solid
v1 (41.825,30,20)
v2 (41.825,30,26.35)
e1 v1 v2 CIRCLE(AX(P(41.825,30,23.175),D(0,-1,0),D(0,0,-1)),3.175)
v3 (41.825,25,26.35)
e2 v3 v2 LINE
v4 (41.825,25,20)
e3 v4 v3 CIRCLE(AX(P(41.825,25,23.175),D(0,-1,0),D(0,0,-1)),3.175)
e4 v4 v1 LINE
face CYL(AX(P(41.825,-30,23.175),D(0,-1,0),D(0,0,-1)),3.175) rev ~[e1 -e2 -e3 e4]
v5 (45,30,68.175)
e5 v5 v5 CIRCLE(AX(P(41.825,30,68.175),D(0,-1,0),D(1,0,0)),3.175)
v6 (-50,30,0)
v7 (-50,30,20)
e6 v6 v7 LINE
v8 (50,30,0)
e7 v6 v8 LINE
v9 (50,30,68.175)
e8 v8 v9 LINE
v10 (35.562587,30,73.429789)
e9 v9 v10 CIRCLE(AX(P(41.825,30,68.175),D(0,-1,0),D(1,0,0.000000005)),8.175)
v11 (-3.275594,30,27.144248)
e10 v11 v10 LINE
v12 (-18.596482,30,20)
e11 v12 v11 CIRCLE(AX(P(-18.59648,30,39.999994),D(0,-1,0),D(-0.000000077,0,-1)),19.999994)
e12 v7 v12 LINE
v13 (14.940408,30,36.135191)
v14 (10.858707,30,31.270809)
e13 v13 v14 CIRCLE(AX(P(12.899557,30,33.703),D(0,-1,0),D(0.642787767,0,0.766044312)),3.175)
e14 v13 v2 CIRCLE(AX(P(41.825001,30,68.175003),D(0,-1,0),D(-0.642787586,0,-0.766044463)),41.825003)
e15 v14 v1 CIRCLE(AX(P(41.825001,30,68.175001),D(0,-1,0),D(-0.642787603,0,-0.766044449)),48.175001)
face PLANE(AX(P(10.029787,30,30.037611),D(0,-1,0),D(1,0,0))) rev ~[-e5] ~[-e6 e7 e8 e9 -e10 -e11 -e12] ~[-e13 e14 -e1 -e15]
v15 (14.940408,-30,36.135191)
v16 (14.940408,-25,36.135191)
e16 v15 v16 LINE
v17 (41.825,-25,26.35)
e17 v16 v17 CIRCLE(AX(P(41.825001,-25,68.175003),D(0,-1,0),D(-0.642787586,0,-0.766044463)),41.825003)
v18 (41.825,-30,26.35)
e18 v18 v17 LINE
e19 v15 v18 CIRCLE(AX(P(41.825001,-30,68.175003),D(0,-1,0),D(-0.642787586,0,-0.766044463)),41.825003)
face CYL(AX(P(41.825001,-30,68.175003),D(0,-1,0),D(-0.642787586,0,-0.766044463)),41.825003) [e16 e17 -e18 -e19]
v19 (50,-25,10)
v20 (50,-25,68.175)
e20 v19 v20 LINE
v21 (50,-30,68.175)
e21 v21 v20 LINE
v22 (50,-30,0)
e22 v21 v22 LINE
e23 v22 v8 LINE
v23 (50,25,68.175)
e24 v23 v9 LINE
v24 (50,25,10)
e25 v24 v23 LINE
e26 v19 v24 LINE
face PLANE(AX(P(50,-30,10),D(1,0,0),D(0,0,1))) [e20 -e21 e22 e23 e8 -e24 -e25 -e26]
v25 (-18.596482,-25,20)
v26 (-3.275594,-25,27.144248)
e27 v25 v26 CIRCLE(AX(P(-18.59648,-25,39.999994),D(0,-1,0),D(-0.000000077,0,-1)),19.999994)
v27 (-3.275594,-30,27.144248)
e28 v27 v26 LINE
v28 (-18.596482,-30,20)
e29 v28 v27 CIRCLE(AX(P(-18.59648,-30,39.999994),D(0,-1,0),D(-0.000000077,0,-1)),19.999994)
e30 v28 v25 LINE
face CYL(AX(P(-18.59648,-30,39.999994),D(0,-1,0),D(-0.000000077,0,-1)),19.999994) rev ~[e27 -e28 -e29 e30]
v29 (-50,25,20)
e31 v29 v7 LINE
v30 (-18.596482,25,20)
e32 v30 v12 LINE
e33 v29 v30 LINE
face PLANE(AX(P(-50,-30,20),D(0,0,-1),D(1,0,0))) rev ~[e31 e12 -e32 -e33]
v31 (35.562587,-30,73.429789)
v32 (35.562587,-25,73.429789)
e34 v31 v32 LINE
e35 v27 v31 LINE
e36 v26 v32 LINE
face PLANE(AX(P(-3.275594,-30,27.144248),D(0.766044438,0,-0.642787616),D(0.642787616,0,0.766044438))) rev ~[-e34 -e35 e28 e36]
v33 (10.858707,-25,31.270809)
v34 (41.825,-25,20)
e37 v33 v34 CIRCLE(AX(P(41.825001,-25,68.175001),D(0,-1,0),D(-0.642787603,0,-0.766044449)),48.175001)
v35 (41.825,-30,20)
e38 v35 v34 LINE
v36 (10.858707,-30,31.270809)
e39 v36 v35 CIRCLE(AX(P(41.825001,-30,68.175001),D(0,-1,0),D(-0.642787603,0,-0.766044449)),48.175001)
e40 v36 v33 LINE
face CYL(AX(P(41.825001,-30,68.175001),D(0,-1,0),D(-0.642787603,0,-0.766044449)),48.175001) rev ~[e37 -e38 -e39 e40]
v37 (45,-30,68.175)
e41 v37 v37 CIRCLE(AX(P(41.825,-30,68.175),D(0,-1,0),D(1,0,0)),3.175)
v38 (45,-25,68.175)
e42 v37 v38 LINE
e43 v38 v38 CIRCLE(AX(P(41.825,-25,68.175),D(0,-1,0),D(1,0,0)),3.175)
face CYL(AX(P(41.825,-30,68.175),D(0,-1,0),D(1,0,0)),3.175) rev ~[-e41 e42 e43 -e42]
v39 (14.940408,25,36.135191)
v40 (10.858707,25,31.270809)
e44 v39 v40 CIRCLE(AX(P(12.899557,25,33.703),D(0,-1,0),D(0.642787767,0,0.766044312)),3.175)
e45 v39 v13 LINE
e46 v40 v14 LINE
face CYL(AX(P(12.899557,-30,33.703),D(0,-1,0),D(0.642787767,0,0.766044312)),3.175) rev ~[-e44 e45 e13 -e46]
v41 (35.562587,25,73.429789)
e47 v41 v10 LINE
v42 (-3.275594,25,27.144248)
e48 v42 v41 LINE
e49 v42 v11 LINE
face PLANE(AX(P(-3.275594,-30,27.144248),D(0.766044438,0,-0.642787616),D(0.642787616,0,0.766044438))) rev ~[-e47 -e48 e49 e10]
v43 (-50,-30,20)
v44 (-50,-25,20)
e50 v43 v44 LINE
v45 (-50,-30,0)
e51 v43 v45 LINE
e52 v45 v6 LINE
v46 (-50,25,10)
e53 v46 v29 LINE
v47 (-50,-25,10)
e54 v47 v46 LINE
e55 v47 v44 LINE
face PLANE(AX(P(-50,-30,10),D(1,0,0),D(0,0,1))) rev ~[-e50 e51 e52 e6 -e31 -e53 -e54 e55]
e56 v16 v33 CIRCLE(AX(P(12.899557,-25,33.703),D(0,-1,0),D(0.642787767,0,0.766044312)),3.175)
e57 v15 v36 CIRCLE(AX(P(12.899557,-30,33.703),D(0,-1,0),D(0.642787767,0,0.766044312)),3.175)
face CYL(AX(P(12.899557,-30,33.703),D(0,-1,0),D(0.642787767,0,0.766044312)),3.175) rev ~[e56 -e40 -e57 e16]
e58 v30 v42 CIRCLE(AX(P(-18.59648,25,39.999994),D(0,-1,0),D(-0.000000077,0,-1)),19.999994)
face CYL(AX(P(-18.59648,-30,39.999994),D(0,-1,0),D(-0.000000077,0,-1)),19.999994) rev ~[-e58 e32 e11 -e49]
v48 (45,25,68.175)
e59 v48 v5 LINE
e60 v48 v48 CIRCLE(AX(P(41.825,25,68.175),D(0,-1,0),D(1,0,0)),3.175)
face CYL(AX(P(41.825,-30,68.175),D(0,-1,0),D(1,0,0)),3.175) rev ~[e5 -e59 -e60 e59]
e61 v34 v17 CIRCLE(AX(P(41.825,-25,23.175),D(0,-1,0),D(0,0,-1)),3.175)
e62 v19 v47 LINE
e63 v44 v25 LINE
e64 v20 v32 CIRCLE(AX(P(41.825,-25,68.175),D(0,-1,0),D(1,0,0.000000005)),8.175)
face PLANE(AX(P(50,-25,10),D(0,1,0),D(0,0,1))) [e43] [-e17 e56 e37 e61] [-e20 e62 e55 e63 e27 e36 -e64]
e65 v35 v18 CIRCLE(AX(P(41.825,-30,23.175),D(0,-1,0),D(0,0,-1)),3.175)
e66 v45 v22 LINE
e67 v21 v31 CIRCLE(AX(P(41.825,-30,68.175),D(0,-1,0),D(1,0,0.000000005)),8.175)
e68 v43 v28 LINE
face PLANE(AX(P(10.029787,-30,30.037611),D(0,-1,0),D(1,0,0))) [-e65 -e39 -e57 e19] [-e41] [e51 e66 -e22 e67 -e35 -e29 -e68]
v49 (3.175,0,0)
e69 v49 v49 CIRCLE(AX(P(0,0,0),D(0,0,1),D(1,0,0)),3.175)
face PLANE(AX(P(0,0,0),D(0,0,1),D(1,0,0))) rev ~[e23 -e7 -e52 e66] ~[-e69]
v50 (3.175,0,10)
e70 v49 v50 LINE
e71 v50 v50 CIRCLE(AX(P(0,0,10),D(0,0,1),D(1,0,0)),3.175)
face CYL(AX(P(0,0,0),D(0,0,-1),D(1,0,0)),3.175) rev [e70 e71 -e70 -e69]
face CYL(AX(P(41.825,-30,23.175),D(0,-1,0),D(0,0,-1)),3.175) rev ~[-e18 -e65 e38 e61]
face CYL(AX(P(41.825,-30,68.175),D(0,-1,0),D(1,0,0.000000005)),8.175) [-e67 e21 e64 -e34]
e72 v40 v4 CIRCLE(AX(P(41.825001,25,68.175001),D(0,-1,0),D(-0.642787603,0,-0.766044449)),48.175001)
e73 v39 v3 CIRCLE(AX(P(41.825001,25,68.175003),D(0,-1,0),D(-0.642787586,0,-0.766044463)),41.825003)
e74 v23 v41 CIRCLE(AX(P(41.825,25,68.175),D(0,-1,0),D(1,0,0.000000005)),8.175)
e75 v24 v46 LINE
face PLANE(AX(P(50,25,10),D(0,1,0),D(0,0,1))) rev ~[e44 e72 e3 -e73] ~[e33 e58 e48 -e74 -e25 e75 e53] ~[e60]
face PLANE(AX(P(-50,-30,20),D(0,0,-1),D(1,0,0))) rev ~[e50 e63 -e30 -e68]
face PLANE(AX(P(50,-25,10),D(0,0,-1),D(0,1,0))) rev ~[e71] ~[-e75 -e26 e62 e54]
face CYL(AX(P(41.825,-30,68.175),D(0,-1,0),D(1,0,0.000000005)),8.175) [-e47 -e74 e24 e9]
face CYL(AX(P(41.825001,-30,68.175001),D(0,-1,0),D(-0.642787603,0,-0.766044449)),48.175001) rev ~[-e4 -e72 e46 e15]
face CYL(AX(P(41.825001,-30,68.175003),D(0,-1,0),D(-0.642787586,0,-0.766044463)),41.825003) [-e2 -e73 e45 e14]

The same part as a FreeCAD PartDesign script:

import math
import FreeCAD as App
import Part
import Sketcher

V = App.Vector
Q = App.Units.Quantity


def add_polygon(sketch, points):
    """Adds a closed chain of lines whose ends are joined by coincident constraints."""
    first, n = sketch.GeometryCount, len(points)
    for a, b in zip(points, points[1:] + points[:1]):
        sketch.addGeometry(Part.LineSegment(App.Vector(*a, 0), App.Vector(*b, 0)), False)
    for i in range(n):
        sketch.addConstraint(Sketcher.Constraint("Coincident", first + i, 2, first + (i + 1) % n, 1))

doc = App.newDocument("Part")
body = doc.addObject("PartDesign::Body", "Body")

# Sketch on XY plane
sketch1 = body.newObject("Sketcher::SketchObject", "Sketch")
sketch1.AttachmentSupport = (doc.getObject("XY_Plane"), [""])
sketch1.MapMode = "FlatFace"
add_polygon(sketch1, [(-50, 30), (-50, -30), (50, -30), (50, 30)])  # lines 0-3
sketch1.addGeometry(Part.Circle(V(0, 0, 0), V(0, 0, 1), 3.2), False)  # 4
sketch1.addConstraint(Sketcher.Constraint("Vertical", 0))
sketch1.addConstraint(Sketcher.Constraint("Horizontal", 1))
sketch1.addConstraint(Sketcher.Constraint("Vertical", 2))
sketch1.addConstraint(Sketcher.Constraint("Horizontal", 3))
sketch1.addConstraint(Sketcher.Constraint("Coincident", 4, 3, -1, 1))
sketch1.addConstraint(Sketcher.Constraint("Symmetric", 0, 2, 2, 2, -1, 1))
sketch1.addConstraint(Sketcher.Constraint("Diameter", 4, Q("6.35 mm")))
sketch1.addConstraint(Sketcher.Constraint("DistanceX", 1, 1, 1, 2, Q("100 mm")))
sketch1.addConstraint(Sketcher.Constraint("DistanceY", 0, 2, 0, 1, Q("60 mm")))
pad1 = body.newObject("PartDesign::Pad", "Pad")
pad1.Profile = sketch1
pad1.Length = 10

# Sketch on XZ plane
sketch2 = body.newObject("Sketcher::SketchObject", "Sketch001")
sketch2.AttachmentSupport = (doc.getObject("XZ_Plane"), [""])
sketch2.MapMode = "FlatFace"
sketch2.AttachmentOffset = App.Placement(V(0, 0, 30), App.Rotation())
sketch2.addGeometry(Part.ArcOfCircle(Part.Circle(V(41.8, 68.2, 0), V(0, 0, 1), 8.2), math.radians(0), math.radians(140)), False)
sketch2.addGeometry(Part.LineSegment(V(35.6, 73.4, 0), V(-3.3, 27.1, 0)), False)
sketch2.addGeometry(Part.ArcOfCircle(Part.Circle(V(-18.6, 40, 0), V(0, 0, 1), 20), math.radians(-90), math.radians(-40)), False)
sketch2.addGeometry(Part.LineSegment(V(-18.6, 20, 0), V(-50, 20, 0)), False)
sketch2.addGeometry(Part.LineSegment(V(-50, 20, 0), V(-50, 10, 0)), False)
sketch2.addGeometry(Part.LineSegment(V(-50, 10, 0), V(50, 10, 0)), False)
sketch2.addGeometry(Part.LineSegment(V(50, 10, 0), V(50, 68.2, 0)), False)
sketch2.addGeometry(Part.ArcOfCircle(Part.Circle(V(41.8, 68.2, 0), V(0, 0, 1), 48.2), math.radians(-130), math.radians(-90)), False)
sketch2.addGeometry(Part.ArcOfCircle(Part.Circle(V(12.9, 33.7, 0), V(0, 0, 1), 3.2), math.radians(50), math.radians(230)), False)
sketch2.addGeometry(Part.ArcOfCircle(Part.Circle(V(41.8, 68.2, 0), V(0, 0, 1), 41.8), math.radians(-130), math.radians(-90)), False)
sketch2.addGeometry(Part.ArcOfCircle(Part.Circle(V(41.8, 23.2, 0), V(0, 0, 1), 3.2), math.radians(-90), math.radians(90)), False)
sketch2.addGeometry(Part.Circle(V(41.8, 68.2, 0), V(0, 0, 1), 3.2), False)
sketch2.addConstraint(Sketcher.Constraint("Tangent", 0, 2, 1, 1))
sketch2.addConstraint(Sketcher.Constraint("Tangent", 1, 2, 2, 2))
sketch2.addConstraint(Sketcher.Constraint("Tangent", 2, 1, 3, 1))
sketch2.addConstraint(Sketcher.Constraint("Coincident", 3, 2, 4, 1))
sketch2.addConstraint(Sketcher.Constraint("Coincident", 4, 2, 5, 1))
sketch2.addConstraint(Sketcher.Constraint("Coincident", 5, 2, 6, 1))
sketch2.addConstraint(Sketcher.Constraint("Tangent", 6, 2, 0, 1))
sketch2.addConstraint(Sketcher.Constraint("Tangent", 7, 1, 8, 2))
sketch2.addConstraint(Sketcher.Constraint("Tangent", 8, 1, 9, 1))
sketch2.addConstraint(Sketcher.Constraint("Tangent", 9, 2, 10, 2))
sketch2.addConstraint(Sketcher.Constraint("Tangent", 10, 1, 7, 2))
sketch2.addConstraint(Sketcher.Constraint("Horizontal", 3))
sketch2.addConstraint(Sketcher.Constraint("Vertical", 4))
sketch2.addConstraint(Sketcher.Constraint("Horizontal", 5))
sketch2.addConstraint(Sketcher.Constraint("Vertical", 6))
sketch2.addConstraint(Sketcher.Constraint("Coincident", 7, 3, 0, 3))
sketch2.addConstraint(Sketcher.Constraint("Coincident", 9, 3, 0, 3))
sketch2.addConstraint(Sketcher.Constraint("Coincident", 11, 3, 0, 3))
sketch2.addConstraint(Sketcher.Constraint("Equal", 10, 11))
sketch2.addConstraint(Sketcher.Constraint("Horizontal", 3, 2, 10, 1))
sketch2.addConstraint(Sketcher.Constraint("Vertical", 9, 3, 10, 3))
sketch2.addConstraint(Sketcher.Constraint("Diameter", 11, Q("6.35 mm")))
sketch2.addConstraint(Sketcher.Constraint("DistanceX", 5, 1, 5, 2, Q("100 mm")))
sketch2.addConstraint(Sketcher.Constraint("DistanceY", 4, 2, 4, 1, Q("10 mm")))
sketch2.addConstraint(Sketcher.Constraint("Angle", 1, Q("-130 deg")))
sketch2.addConstraint(Sketcher.Constraint("DistanceY", -1, 1, 2, 1, Q("20 mm")))
sketch2.addConstraint(Sketcher.Constraint("DistanceX", 3, 2, -1, 1, Q("50 mm")))
sketch2.addConstraint(Sketcher.Constraint("Radius", 0, Q("8.175 mm")))
sketch2.addConstraint(Sketcher.Constraint("Radius", 7, Q("48.175001 mm")))
sketch2.addConstraint(Sketcher.Constraint("DistanceY", -1, 1, 8, 3, Q("33.703 mm")))
sketch2.addConstraint(Sketcher.Constraint("Radius", 2, Q("19.999994 mm")))
pad2 = body.newObject("PartDesign::Pad", "Pad001")
pad2.Profile = sketch2
pad2.Length = 60
pad2.Reversed = True

# Sketch on YZ plane
sketch3 = body.newObject("Sketcher::SketchObject", "Sketch002")
sketch3.AttachmentSupport = (doc.getObject("YZ_Plane"), [""])
sketch3.MapMode = "FlatFace"
sketch3.AttachmentOffset = App.Placement(V(0, 0, 50), App.Rotation())
add_polygon(sketch3, [(-25, 76), (-25, 10), (25, 10), (25, 76)])  # lines 0-3
sketch3.addConstraint(Sketcher.Constraint("Vertical", 0))
sketch3.addConstraint(Sketcher.Constraint("Horizontal", 1))
sketch3.addConstraint(Sketcher.Constraint("Vertical", 2))
sketch3.addConstraint(Sketcher.Constraint("Horizontal", 3))
sketch3.addConstraint(Sketcher.Constraint("DistanceX", 1, 1, 1, 2, Q("50 mm")))
sketch3.addConstraint(Sketcher.Constraint("DistanceX", 0, 2, -1, 1, Q("25 mm")))
sketch3.addConstraint(Sketcher.Constraint("DistanceY", -1, 1, 0, 2, Q("10 mm")))
sketch3.addConstraint(Sketcher.Constraint("DistanceY", 0, 2, 0, 1, Q("66.35 mm")))
pocket1 = body.newObject("PartDesign::Pocket", "Pocket")
pocket1.Profile = sketch3
pocket1.Type = "ThroughAll"

doc.recompute()
